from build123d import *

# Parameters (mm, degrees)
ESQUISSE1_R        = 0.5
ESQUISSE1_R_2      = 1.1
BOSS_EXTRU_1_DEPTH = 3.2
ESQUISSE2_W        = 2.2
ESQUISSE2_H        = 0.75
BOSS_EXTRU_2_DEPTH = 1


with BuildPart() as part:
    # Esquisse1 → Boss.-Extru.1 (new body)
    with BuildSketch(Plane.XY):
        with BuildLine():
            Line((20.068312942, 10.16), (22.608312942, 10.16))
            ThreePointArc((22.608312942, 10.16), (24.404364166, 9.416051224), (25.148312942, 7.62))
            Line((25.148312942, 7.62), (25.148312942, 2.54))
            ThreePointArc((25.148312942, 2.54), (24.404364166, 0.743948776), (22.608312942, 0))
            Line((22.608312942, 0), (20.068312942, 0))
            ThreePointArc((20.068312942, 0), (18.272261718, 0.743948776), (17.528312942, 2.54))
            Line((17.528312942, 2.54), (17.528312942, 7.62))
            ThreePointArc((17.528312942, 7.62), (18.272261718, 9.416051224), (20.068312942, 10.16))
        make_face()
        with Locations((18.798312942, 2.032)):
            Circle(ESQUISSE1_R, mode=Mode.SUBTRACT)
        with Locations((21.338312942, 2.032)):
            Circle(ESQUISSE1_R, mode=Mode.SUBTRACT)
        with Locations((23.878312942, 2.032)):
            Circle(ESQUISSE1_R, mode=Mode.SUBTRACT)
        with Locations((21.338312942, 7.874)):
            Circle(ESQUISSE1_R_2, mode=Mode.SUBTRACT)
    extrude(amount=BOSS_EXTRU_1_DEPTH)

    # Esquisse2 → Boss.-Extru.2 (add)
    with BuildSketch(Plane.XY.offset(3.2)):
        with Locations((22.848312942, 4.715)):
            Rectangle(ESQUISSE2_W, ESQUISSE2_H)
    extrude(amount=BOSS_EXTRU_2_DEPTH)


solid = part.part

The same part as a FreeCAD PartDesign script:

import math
import FreeCAD as App
import Part
import Sketcher
Q = App.Units.Quantity


def add_polygon(sketch, points):
    """Adds a closed chain of lines whose ends are joined by coincident constraints."""
    first, n = sketch.GeometryCount, len(points)
    for a, b in zip(points, points[1:] + points[:1]):
        sketch.addGeometry(Part.LineSegment(App.Vector(*a, 0), App.Vector(*b, 0)), False)
    for i in range(n):
        sketch.addConstraint(Sketcher.Constraint("Coincident", first + i, 2, first + (i + 1) % n, 1))

doc = App.newDocument("Part")
body = doc.addObject("PartDesign::Body", "Body")

# Sketch on XY plane
sketch1 = body.newObject("Sketcher::SketchObject", "Sketch")
sketch1.AttachmentSupport = (doc.getObject("XY_Plane"), [""])
sketch1.MapMode = "FlatFace"
sketch1.addGeometry([
    Part.LineSegment(App.Vector(22.6, 10.2, 0), App.Vector(20.1, 10.2, 0)),  # 0
    Part.ArcOfCircle(Part.Circle(App.Vector(20.1, 7.6, 0), App.Vector(0, 0, 1), 2.5), math.radians(90), math.radians(180)),  # 1
    Part.LineSegment(App.Vector(17.5, 7.6, 0), App.Vector(17.5, 2.5, 0)),  # 2
    Part.ArcOfCircle(Part.Circle(App.Vector(20.1, 2.5, 0), App.Vector(0, 0, 1), 2.5), math.radians(-180), math.radians(-90)),  # 3
    Part.LineSegment(App.Vector(20.1, 0, 0), App.Vector(22.6, 0, 0)),  # 4
    Part.ArcOfCircle(Part.Circle(App.Vector(22.6, 2.5, 0), App.Vector(0, 0, 1), 2.5), math.radians(-90), math.radians(0)),  # 5
    Part.LineSegment(App.Vector(25.1, 2.5, 0), App.Vector(25.1, 7.6, 0)),  # 6
    Part.ArcOfCircle(Part.Circle(App.Vector(22.6, 7.6, 0), App.Vector(0, 0, 1), 2.5), math.radians(0), math.radians(90)),  # 7
    Part.Circle(App.Vector(23.9, 2, 0), App.Vector(0, 0, 1), 0.5),  # 8
    Part.Circle(App.Vector(21.3, 2, 0), App.Vector(0, 0, 1), 0.5),  # 9
    Part.Circle(App.Vector(18.8, 2, 0), App.Vector(0, 0, 1), 0.5),  # 10
    Part.Circle(App.Vector(21.3, 7.9, 0), App.Vector(0, 0, 1), 1.1),  # 11
], False)
sketch1.addConstraint([
    Sketcher.Constraint("Tangent", 0, 2, 1, 1),
    Sketcher.Constraint("Tangent", 1, 2, 2, 1),
    Sketcher.Constraint("Tangent", 2, 2, 3, 1),
    Sketcher.Constraint("Tangent", 3, 2, 4, 1),
    Sketcher.Constraint("Tangent", 4, 2, 5, 1),
    Sketcher.Constraint("Tangent", 5, 2, 6, 1),
    Sketcher.Constraint("Tangent", 6, 2, 7, 1),
    Sketcher.Constraint("Tangent", 7, 2, 0, 1),
    Sketcher.Constraint("Horizontal", 0),
    Sketcher.Constraint("Vertical", 2),
    Sketcher.Constraint("Horizontal", 4),
    Sketcher.Constraint("Vertical", 6),
    Sketcher.Constraint("Equal", 1, 3),
    Sketcher.Constraint("Equal", 3, 5),
    Sketcher.Constraint("Equal", 5, 7),
    Sketcher.Constraint("Equal", 8, 9),
    Sketcher.Constraint("Equal", 9, 10),
    Sketcher.Constraint("PointOnObject", 3, 2, -1),
    Sketcher.Constraint("Horizontal", 8, 3, 9, 3),
    Sketcher.Constraint("Horizontal", 9, 3, 10, 3),
    Sketcher.Constraint("Vertical", 9, 3, 11, 3),
    Sketcher.Constraint("Diameter", 8, Q("1 mm")),
    Sketcher.Constraint("Diameter", 11, Q("2.2 mm")),
    Sketcher.Constraint("Radius", 1, Q("2.54 mm")),
    Sketcher.Constraint("DistanceX", 0, 2, 0, 1, Q("2.54 mm")),
    Sketcher.Constraint("DistanceY", 2, 2, 2, 1, Q("5.08 mm")),
    Sketcher.Constraint("DistanceX", 5, 3, 8, 3, Q("1.27 mm")),
    Sketcher.Constraint("DistanceX", 9, 3, 5, 3, Q("1.27 mm")),
    Sketcher.Constraint("DistanceX", 10, 3, 3, 3, Q("1.27 mm")),
    Sketcher.Constraint("DistanceY", -1, 1, 8, 3, Q("2.032 mm")),
    Sketcher.Constraint("DistanceY", -1, 1, 11, 3, Q("7.874 mm")),
    Sketcher.Constraint("DistanceX", -1, 1, 1, 3, Q("20.068313 mm")),
])
pad1 = body.newObject("PartDesign::Pad", "Pad")
pad1.Profile = sketch1
pad1.Length = 3.2

# Sketch on XY plane
sketch2 = body.newObject("Sketcher::SketchObject", "Sketch001")
sketch2.AttachmentSupport = (doc.getObject("XY_Plane"), [""])
sketch2.MapMode = "FlatFace"
sketch2.AttachmentOffset = App.Placement(App.Vector(0, 0, 3.2), App.Rotation())
add_polygon(sketch2, [(21.7, 5.1), (21.7, 4.3), (23.9, 4.3), (23.9, 5.1)])  # lines 0-3
sketch2.addConstraint([
    Sketcher.Constraint("Vertical", 0),
    Sketcher.Constraint("Horizontal", 1),
    Sketcher.Constraint("Vertical", 2),
    Sketcher.Constraint("Horizontal", 3),
    Sketcher.Constraint("DistanceX", 1, 1, 1, 2, Q("2.2 mm")),
    Sketcher.Constraint("DistanceY", 0, 2, 0, 1, Q("0.75 mm")),
    Sketcher.Constraint("DistanceY", -1, 1, 0, 2, Q("4.34 mm")),
    Sketcher.Constraint("DistanceX", -1, 1, 0, 2, Q("21.748313 mm")),
])
pad2 = body.newObject("PartDesign::Pad", "Pad001")
pad2.Profile = sketch2
pad2.Length = 1

doc.recompute()
